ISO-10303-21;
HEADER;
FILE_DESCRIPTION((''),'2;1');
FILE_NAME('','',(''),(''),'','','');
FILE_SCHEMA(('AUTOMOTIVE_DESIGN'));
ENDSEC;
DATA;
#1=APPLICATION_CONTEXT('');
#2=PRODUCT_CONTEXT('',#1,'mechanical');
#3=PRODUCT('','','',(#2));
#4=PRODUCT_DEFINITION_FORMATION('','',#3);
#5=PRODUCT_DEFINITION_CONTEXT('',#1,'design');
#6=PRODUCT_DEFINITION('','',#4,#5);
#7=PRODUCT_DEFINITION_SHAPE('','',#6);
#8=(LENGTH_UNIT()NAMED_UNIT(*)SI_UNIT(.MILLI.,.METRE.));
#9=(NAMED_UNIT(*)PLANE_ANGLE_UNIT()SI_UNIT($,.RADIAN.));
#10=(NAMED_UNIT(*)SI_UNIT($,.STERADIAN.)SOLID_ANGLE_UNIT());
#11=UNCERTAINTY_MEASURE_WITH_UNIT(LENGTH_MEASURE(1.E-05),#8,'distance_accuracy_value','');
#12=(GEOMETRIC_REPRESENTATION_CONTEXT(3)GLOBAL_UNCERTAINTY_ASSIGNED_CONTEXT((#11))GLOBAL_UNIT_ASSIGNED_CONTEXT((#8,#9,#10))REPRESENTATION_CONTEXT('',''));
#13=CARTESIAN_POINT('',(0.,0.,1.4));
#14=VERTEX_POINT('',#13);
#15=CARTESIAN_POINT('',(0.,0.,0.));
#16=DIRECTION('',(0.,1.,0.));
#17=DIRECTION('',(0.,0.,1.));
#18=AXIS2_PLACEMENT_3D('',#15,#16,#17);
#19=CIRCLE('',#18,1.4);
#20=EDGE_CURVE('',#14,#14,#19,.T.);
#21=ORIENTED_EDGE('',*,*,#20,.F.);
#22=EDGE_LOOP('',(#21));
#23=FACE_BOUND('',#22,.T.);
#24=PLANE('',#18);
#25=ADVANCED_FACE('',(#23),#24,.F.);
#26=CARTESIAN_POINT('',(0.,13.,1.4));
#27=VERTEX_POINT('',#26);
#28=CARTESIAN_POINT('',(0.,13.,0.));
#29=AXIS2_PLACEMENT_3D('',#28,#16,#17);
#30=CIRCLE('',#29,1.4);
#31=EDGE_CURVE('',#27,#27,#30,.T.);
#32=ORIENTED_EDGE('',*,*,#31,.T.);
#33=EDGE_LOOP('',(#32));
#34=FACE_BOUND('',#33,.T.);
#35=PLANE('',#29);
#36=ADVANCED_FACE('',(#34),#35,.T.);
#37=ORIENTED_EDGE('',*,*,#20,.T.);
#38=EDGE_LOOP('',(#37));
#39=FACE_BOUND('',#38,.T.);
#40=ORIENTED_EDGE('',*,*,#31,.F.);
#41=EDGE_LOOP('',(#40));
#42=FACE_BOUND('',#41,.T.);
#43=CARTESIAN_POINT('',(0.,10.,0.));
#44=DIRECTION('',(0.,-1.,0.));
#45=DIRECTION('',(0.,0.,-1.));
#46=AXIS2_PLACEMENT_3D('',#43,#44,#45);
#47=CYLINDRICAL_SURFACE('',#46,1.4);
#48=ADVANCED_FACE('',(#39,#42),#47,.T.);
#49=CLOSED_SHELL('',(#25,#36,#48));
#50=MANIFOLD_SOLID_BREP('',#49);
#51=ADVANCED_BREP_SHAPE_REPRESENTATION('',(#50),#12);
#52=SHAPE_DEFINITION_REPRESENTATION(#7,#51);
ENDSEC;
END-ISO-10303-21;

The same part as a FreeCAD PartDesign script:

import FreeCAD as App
import Part
import Sketcher
from FreeCAD import Vector

doc = App.newDocument("Part")
params = doc.addObject("Spreadsheet::Sheet", "Params")
for row, (alias, value) in enumerate([
    ("sketch1_diameter", "2.8 mm"),
    ("pad1_length", "10 mm"),
    ("sketch2_diameter", "2.8 mm"),
    ("pad2_length", "3 mm"),
], start=1):
    params.set(f"A{row}", alias)
    params.set(f"B{row}", "=" + value)
    params.setAlias(f"B{row}", alias)

body = doc.addObject("PartDesign::Body", "Body")

sketch1 = body.newObject("Sketcher::SketchObject", "Sketch")
sketch1.AttachmentSupport = (doc.getObject("XZ_Plane"), [""])
sketch1.MapMode = "FlatFace"
sketch1.addGeometry(Part.Circle(Vector(0, 0, 0), Vector(0, 0, 1), 1.4), False)
sketch1.addConstraint([
    Sketcher.Constraint("Coincident", 0, 3, -1, 1),
    Sketcher.Constraint("Diameter", 0, 2.8),
])
sketch1.setExpression("Constraints[1]", "Params.sketch1_diameter")
pad1 = body.newObject("PartDesign::Pad", "Pad")
pad1.Profile = sketch1
pad1.setExpression("Length", "Params.pad1_length")
pad1.Reversed = True

sketch2 = body.newObject("Sketcher::SketchObject", "Sketch001")
sketch2.AttachmentSupport = (doc.getObject("XZ_Plane"), [""])
sketch2.MapMode = "FlatFace"
sketch2.AttachmentOffset = App.Placement(Vector(0, 0, -10), App.Rotation())
sketch2.addGeometry(Part.Circle(Vector(0, 0, 0), Vector(0, 0, 1), 1.4), False)
sketch2.addConstraint([
    Sketcher.Constraint("Coincident", 0, 3, -1, 1),
    Sketcher.Constraint("Diameter", 0, 2.8),
])
sketch2.setExpression("Constraints[1]", "Params.sketch2_diameter")
pad2 = body.newObject("PartDesign::Pad", "Pad001")
pad2.Profile = sketch2
pad2.setExpression("Length", "Params.pad2_length")
pad2.Reversed = True

doc.recompute()
